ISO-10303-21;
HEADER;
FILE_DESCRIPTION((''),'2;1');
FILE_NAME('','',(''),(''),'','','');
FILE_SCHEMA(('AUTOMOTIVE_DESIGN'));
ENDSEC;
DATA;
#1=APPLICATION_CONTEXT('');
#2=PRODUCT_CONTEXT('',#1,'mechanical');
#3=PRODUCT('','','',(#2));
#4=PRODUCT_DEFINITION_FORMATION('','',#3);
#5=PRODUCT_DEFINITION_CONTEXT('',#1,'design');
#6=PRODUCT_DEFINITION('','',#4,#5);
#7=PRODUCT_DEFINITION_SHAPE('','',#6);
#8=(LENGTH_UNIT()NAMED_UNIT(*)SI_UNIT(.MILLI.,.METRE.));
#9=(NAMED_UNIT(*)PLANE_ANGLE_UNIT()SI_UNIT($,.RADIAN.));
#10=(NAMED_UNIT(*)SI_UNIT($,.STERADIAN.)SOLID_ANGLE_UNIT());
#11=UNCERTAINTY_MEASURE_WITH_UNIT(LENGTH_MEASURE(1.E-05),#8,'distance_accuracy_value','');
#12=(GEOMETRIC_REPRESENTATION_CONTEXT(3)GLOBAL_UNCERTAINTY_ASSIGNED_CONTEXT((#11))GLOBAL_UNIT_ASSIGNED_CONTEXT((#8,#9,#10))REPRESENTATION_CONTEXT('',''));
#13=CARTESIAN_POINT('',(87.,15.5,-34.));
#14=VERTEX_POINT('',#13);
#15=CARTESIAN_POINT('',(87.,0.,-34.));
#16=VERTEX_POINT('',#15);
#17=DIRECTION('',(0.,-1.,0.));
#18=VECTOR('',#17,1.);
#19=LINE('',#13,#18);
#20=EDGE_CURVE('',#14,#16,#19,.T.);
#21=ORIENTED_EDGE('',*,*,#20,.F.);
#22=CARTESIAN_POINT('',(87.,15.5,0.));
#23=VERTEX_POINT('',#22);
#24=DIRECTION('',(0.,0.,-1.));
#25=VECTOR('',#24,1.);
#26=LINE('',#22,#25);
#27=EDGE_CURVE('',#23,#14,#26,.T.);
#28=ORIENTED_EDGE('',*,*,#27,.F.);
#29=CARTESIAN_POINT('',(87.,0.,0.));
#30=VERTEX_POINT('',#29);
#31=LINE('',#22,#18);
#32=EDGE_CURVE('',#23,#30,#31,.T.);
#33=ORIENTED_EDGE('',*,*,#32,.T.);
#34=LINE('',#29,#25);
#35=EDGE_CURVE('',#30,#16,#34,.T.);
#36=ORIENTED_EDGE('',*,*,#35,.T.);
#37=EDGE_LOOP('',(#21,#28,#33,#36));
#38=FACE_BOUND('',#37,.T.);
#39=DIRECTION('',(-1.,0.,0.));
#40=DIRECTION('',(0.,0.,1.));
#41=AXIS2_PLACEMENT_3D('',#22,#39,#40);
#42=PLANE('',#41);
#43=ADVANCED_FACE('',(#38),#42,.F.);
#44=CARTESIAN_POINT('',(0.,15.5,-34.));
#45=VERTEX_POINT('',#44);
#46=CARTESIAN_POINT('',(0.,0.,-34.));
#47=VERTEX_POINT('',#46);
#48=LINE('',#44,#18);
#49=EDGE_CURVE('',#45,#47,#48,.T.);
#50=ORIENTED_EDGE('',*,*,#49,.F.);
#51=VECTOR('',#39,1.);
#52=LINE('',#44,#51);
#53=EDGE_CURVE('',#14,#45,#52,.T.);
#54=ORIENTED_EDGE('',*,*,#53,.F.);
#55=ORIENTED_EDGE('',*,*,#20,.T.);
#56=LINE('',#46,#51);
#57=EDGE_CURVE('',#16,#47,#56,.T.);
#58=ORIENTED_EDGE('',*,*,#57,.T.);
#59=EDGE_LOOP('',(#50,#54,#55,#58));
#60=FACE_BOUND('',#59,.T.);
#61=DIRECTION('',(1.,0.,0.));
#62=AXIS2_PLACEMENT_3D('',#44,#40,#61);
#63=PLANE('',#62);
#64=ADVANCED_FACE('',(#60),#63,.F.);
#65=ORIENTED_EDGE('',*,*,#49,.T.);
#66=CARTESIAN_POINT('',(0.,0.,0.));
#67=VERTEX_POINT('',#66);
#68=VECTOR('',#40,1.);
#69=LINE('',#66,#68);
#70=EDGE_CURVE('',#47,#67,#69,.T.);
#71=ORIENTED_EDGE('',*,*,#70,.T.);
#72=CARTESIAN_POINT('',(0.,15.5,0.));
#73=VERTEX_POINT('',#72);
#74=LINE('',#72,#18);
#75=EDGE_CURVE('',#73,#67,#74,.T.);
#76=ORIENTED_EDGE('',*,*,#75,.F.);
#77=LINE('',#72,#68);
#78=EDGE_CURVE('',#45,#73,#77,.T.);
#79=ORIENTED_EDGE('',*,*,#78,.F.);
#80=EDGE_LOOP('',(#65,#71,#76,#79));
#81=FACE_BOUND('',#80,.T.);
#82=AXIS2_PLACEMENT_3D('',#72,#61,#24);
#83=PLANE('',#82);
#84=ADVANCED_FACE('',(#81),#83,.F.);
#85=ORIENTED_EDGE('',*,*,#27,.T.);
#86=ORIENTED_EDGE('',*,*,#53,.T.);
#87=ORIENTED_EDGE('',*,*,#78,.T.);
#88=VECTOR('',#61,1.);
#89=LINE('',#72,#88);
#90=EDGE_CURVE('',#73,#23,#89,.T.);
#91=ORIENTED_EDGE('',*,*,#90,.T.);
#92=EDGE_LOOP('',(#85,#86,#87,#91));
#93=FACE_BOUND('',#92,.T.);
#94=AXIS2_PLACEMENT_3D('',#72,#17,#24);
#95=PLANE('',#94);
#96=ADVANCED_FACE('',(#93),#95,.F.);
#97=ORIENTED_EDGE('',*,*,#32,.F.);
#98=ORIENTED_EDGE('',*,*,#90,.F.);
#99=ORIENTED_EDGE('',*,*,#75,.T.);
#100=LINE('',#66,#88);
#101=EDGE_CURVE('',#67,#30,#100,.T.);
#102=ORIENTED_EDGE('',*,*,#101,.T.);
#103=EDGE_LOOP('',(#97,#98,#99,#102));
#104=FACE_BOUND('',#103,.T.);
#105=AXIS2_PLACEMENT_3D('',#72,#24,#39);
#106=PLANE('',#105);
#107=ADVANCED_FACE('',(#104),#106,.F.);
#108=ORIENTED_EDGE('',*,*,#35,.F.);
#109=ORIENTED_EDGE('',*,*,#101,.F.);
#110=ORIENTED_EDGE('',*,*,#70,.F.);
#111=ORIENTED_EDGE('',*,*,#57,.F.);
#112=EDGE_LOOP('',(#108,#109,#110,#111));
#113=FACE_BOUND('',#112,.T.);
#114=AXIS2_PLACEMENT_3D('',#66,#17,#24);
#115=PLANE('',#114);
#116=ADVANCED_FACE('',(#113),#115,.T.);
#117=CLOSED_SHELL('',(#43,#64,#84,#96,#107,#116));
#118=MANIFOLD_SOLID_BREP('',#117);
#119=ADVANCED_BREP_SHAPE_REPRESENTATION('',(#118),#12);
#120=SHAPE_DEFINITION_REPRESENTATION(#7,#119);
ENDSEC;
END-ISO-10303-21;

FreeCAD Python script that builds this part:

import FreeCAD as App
import Part
import Sketcher
from FreeCAD import Vector
Q = App.Units.Quantity

doc = App.newDocument("Part")
body = doc.addObject("PartDesign::Body", "Body")

# Sketch on XZ plane
sketch1 = body.newObject("Sketcher::SketchObject", "Sketch")
sketch1.AttachmentSupport = (doc.getObject("XZ_Plane"), [""])
sketch1.MapMode = "FlatFace"
sketch1.addGeometry([
    Part.LineSegment(Vector(0, -34, 0), Vector(0, 0, 0)),
    Part.LineSegment(Vector(0, 0, 0), Vector(87, 0, 0)),
    Part.LineSegment(Vector(87, 0, 0), Vector(87, -34, 0)),
    Part.LineSegment(Vector(87, -34, 0), Vector(0, -34, 0)),
], False)
sketch1.addConstraint([
    Sketcher.Constraint("Coincident", 0, 2, 1, 1),
    Sketcher.Constraint("Coincident", 1, 2, 2, 1),
    Sketcher.Constraint("Coincident", 2, 2, 3, 1),
    Sketcher.Constraint("Coincident", 3, 2, 0, 1),
    Sketcher.Constraint("Vertical", 0),
    Sketcher.Constraint("Horizontal", 1),
    Sketcher.Constraint("Vertical", 2),
    Sketcher.Constraint("Horizontal", 3),
    Sketcher.Constraint("Coincident", 0, 2, -1, 1),
    Sketcher.Constraint("DistanceX", 1, 1, 1, 2, Q("87 mm")),
    Sketcher.Constraint("DistanceY", 0, 1, 0, 2, Q("34 mm")),
])
pad1 = body.newObject("PartDesign::Pad", "Pad")
pad1.Profile = sketch1
pad1.Length = 15.5
pad1.Reversed = True

doc.recompute()
